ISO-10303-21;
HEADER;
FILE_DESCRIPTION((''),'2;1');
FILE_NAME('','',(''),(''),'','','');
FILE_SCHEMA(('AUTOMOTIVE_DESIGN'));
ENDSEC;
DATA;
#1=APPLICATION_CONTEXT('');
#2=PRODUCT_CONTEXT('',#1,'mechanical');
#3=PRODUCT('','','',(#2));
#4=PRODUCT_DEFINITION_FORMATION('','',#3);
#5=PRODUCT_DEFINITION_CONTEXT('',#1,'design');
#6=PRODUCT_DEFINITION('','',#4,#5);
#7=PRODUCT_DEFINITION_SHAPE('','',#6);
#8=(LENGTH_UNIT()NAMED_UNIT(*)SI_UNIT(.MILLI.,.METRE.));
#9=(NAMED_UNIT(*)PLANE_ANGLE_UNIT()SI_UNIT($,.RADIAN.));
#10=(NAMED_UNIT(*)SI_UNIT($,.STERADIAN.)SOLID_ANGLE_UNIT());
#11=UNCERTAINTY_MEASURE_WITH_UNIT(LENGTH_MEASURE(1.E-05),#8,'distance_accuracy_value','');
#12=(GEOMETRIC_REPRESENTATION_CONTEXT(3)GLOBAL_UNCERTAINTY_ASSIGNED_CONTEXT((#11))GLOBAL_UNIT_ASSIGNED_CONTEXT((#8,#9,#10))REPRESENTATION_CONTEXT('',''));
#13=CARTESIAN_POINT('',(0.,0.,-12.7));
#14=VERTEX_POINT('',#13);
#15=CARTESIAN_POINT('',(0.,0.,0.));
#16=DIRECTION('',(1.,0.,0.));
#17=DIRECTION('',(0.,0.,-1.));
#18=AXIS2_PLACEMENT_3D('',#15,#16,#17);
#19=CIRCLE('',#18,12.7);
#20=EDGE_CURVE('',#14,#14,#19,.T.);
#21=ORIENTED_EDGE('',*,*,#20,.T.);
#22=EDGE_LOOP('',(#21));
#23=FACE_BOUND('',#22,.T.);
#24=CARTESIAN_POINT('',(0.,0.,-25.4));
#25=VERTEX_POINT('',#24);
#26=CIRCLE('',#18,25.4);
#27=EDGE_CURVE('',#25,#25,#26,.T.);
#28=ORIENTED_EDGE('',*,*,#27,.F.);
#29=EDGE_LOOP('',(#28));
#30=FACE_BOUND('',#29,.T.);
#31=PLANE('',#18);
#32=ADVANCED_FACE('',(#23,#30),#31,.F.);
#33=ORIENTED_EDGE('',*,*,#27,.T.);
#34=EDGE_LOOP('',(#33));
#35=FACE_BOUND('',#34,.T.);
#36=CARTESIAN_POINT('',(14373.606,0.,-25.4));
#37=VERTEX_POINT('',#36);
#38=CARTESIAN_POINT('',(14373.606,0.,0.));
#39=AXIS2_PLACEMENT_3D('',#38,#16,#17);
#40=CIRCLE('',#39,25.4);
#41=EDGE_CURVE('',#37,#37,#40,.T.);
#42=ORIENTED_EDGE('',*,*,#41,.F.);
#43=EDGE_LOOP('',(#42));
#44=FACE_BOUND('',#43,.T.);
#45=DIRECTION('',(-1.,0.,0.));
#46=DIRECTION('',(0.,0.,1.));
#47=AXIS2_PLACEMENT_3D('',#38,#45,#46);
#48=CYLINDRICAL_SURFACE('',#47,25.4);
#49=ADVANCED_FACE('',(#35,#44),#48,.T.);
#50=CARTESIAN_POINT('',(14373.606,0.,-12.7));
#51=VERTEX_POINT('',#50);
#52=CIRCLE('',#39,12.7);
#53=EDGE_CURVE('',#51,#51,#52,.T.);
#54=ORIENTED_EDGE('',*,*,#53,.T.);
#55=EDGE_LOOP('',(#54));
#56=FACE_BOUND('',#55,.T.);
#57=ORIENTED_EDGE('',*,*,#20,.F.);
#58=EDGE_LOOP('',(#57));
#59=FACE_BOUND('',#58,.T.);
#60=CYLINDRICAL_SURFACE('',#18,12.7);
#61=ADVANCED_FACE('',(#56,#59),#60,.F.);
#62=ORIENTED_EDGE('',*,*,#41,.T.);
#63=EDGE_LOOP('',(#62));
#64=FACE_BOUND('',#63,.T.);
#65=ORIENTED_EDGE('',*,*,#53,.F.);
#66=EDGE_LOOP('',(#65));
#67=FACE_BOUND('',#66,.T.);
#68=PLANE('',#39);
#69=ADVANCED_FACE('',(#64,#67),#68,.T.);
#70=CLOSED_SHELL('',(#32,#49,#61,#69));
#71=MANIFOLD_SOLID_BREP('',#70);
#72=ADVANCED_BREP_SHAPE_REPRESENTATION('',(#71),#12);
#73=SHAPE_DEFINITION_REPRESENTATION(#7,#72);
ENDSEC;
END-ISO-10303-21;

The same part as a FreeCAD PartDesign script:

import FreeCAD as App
import Part
import Sketcher
from FreeCAD import Vector
Q = App.Units.Quantity

doc = App.newDocument("Part")
body = doc.addObject("PartDesign::Body", "Body")

# Sketch on YZ plane
sketch1 = body.newObject("Sketcher::SketchObject", "Sketch")
sketch1.AttachmentSupport = (doc.getObject("YZ_Plane"), [""])
sketch1.MapMode = "FlatFace"
sketch1.addGeometry(Part.Circle(Vector(0, 0, 0), Vector(0, 0, 1), 25), False)
sketch1.addConstraint([
    Sketcher.Constraint("Coincident", 0, 3, -1, 1),
    Sketcher.Constraint("Diameter", 0, Q("2 in")),
])
pad1 = body.newObject("PartDesign::Pad", "Pad")
pad1.Profile = sketch1
pad1.Length = Q("565.89 in")

# Sketch on YZ plane
sketch2 = body.newObject("Sketcher::SketchObject", "Sketch001")
sketch2.AttachmentSupport = (doc.getObject("YZ_Plane"), [""])
sketch2.MapMode = "FlatFace"
sketch2.AttachmentOffset = App.Placement(Vector(0, 0, 565.89 * 25.4), App.Rotation())
sketch2.addGeometry(Part.Circle(Vector(0, 0, 0), Vector(0, 0, 1), 13), False)
sketch2.addConstraint([
    Sketcher.Constraint("Coincident", 0, 3, -1, 1),
    Sketcher.Constraint("Diameter", 0, Q("1 in")),
])
pocket1 = body.newObject("PartDesign::Pocket", "Pocket")
pocket1.Profile = sketch2
pocket1.Type = "ThroughAll"

doc.recompute()
